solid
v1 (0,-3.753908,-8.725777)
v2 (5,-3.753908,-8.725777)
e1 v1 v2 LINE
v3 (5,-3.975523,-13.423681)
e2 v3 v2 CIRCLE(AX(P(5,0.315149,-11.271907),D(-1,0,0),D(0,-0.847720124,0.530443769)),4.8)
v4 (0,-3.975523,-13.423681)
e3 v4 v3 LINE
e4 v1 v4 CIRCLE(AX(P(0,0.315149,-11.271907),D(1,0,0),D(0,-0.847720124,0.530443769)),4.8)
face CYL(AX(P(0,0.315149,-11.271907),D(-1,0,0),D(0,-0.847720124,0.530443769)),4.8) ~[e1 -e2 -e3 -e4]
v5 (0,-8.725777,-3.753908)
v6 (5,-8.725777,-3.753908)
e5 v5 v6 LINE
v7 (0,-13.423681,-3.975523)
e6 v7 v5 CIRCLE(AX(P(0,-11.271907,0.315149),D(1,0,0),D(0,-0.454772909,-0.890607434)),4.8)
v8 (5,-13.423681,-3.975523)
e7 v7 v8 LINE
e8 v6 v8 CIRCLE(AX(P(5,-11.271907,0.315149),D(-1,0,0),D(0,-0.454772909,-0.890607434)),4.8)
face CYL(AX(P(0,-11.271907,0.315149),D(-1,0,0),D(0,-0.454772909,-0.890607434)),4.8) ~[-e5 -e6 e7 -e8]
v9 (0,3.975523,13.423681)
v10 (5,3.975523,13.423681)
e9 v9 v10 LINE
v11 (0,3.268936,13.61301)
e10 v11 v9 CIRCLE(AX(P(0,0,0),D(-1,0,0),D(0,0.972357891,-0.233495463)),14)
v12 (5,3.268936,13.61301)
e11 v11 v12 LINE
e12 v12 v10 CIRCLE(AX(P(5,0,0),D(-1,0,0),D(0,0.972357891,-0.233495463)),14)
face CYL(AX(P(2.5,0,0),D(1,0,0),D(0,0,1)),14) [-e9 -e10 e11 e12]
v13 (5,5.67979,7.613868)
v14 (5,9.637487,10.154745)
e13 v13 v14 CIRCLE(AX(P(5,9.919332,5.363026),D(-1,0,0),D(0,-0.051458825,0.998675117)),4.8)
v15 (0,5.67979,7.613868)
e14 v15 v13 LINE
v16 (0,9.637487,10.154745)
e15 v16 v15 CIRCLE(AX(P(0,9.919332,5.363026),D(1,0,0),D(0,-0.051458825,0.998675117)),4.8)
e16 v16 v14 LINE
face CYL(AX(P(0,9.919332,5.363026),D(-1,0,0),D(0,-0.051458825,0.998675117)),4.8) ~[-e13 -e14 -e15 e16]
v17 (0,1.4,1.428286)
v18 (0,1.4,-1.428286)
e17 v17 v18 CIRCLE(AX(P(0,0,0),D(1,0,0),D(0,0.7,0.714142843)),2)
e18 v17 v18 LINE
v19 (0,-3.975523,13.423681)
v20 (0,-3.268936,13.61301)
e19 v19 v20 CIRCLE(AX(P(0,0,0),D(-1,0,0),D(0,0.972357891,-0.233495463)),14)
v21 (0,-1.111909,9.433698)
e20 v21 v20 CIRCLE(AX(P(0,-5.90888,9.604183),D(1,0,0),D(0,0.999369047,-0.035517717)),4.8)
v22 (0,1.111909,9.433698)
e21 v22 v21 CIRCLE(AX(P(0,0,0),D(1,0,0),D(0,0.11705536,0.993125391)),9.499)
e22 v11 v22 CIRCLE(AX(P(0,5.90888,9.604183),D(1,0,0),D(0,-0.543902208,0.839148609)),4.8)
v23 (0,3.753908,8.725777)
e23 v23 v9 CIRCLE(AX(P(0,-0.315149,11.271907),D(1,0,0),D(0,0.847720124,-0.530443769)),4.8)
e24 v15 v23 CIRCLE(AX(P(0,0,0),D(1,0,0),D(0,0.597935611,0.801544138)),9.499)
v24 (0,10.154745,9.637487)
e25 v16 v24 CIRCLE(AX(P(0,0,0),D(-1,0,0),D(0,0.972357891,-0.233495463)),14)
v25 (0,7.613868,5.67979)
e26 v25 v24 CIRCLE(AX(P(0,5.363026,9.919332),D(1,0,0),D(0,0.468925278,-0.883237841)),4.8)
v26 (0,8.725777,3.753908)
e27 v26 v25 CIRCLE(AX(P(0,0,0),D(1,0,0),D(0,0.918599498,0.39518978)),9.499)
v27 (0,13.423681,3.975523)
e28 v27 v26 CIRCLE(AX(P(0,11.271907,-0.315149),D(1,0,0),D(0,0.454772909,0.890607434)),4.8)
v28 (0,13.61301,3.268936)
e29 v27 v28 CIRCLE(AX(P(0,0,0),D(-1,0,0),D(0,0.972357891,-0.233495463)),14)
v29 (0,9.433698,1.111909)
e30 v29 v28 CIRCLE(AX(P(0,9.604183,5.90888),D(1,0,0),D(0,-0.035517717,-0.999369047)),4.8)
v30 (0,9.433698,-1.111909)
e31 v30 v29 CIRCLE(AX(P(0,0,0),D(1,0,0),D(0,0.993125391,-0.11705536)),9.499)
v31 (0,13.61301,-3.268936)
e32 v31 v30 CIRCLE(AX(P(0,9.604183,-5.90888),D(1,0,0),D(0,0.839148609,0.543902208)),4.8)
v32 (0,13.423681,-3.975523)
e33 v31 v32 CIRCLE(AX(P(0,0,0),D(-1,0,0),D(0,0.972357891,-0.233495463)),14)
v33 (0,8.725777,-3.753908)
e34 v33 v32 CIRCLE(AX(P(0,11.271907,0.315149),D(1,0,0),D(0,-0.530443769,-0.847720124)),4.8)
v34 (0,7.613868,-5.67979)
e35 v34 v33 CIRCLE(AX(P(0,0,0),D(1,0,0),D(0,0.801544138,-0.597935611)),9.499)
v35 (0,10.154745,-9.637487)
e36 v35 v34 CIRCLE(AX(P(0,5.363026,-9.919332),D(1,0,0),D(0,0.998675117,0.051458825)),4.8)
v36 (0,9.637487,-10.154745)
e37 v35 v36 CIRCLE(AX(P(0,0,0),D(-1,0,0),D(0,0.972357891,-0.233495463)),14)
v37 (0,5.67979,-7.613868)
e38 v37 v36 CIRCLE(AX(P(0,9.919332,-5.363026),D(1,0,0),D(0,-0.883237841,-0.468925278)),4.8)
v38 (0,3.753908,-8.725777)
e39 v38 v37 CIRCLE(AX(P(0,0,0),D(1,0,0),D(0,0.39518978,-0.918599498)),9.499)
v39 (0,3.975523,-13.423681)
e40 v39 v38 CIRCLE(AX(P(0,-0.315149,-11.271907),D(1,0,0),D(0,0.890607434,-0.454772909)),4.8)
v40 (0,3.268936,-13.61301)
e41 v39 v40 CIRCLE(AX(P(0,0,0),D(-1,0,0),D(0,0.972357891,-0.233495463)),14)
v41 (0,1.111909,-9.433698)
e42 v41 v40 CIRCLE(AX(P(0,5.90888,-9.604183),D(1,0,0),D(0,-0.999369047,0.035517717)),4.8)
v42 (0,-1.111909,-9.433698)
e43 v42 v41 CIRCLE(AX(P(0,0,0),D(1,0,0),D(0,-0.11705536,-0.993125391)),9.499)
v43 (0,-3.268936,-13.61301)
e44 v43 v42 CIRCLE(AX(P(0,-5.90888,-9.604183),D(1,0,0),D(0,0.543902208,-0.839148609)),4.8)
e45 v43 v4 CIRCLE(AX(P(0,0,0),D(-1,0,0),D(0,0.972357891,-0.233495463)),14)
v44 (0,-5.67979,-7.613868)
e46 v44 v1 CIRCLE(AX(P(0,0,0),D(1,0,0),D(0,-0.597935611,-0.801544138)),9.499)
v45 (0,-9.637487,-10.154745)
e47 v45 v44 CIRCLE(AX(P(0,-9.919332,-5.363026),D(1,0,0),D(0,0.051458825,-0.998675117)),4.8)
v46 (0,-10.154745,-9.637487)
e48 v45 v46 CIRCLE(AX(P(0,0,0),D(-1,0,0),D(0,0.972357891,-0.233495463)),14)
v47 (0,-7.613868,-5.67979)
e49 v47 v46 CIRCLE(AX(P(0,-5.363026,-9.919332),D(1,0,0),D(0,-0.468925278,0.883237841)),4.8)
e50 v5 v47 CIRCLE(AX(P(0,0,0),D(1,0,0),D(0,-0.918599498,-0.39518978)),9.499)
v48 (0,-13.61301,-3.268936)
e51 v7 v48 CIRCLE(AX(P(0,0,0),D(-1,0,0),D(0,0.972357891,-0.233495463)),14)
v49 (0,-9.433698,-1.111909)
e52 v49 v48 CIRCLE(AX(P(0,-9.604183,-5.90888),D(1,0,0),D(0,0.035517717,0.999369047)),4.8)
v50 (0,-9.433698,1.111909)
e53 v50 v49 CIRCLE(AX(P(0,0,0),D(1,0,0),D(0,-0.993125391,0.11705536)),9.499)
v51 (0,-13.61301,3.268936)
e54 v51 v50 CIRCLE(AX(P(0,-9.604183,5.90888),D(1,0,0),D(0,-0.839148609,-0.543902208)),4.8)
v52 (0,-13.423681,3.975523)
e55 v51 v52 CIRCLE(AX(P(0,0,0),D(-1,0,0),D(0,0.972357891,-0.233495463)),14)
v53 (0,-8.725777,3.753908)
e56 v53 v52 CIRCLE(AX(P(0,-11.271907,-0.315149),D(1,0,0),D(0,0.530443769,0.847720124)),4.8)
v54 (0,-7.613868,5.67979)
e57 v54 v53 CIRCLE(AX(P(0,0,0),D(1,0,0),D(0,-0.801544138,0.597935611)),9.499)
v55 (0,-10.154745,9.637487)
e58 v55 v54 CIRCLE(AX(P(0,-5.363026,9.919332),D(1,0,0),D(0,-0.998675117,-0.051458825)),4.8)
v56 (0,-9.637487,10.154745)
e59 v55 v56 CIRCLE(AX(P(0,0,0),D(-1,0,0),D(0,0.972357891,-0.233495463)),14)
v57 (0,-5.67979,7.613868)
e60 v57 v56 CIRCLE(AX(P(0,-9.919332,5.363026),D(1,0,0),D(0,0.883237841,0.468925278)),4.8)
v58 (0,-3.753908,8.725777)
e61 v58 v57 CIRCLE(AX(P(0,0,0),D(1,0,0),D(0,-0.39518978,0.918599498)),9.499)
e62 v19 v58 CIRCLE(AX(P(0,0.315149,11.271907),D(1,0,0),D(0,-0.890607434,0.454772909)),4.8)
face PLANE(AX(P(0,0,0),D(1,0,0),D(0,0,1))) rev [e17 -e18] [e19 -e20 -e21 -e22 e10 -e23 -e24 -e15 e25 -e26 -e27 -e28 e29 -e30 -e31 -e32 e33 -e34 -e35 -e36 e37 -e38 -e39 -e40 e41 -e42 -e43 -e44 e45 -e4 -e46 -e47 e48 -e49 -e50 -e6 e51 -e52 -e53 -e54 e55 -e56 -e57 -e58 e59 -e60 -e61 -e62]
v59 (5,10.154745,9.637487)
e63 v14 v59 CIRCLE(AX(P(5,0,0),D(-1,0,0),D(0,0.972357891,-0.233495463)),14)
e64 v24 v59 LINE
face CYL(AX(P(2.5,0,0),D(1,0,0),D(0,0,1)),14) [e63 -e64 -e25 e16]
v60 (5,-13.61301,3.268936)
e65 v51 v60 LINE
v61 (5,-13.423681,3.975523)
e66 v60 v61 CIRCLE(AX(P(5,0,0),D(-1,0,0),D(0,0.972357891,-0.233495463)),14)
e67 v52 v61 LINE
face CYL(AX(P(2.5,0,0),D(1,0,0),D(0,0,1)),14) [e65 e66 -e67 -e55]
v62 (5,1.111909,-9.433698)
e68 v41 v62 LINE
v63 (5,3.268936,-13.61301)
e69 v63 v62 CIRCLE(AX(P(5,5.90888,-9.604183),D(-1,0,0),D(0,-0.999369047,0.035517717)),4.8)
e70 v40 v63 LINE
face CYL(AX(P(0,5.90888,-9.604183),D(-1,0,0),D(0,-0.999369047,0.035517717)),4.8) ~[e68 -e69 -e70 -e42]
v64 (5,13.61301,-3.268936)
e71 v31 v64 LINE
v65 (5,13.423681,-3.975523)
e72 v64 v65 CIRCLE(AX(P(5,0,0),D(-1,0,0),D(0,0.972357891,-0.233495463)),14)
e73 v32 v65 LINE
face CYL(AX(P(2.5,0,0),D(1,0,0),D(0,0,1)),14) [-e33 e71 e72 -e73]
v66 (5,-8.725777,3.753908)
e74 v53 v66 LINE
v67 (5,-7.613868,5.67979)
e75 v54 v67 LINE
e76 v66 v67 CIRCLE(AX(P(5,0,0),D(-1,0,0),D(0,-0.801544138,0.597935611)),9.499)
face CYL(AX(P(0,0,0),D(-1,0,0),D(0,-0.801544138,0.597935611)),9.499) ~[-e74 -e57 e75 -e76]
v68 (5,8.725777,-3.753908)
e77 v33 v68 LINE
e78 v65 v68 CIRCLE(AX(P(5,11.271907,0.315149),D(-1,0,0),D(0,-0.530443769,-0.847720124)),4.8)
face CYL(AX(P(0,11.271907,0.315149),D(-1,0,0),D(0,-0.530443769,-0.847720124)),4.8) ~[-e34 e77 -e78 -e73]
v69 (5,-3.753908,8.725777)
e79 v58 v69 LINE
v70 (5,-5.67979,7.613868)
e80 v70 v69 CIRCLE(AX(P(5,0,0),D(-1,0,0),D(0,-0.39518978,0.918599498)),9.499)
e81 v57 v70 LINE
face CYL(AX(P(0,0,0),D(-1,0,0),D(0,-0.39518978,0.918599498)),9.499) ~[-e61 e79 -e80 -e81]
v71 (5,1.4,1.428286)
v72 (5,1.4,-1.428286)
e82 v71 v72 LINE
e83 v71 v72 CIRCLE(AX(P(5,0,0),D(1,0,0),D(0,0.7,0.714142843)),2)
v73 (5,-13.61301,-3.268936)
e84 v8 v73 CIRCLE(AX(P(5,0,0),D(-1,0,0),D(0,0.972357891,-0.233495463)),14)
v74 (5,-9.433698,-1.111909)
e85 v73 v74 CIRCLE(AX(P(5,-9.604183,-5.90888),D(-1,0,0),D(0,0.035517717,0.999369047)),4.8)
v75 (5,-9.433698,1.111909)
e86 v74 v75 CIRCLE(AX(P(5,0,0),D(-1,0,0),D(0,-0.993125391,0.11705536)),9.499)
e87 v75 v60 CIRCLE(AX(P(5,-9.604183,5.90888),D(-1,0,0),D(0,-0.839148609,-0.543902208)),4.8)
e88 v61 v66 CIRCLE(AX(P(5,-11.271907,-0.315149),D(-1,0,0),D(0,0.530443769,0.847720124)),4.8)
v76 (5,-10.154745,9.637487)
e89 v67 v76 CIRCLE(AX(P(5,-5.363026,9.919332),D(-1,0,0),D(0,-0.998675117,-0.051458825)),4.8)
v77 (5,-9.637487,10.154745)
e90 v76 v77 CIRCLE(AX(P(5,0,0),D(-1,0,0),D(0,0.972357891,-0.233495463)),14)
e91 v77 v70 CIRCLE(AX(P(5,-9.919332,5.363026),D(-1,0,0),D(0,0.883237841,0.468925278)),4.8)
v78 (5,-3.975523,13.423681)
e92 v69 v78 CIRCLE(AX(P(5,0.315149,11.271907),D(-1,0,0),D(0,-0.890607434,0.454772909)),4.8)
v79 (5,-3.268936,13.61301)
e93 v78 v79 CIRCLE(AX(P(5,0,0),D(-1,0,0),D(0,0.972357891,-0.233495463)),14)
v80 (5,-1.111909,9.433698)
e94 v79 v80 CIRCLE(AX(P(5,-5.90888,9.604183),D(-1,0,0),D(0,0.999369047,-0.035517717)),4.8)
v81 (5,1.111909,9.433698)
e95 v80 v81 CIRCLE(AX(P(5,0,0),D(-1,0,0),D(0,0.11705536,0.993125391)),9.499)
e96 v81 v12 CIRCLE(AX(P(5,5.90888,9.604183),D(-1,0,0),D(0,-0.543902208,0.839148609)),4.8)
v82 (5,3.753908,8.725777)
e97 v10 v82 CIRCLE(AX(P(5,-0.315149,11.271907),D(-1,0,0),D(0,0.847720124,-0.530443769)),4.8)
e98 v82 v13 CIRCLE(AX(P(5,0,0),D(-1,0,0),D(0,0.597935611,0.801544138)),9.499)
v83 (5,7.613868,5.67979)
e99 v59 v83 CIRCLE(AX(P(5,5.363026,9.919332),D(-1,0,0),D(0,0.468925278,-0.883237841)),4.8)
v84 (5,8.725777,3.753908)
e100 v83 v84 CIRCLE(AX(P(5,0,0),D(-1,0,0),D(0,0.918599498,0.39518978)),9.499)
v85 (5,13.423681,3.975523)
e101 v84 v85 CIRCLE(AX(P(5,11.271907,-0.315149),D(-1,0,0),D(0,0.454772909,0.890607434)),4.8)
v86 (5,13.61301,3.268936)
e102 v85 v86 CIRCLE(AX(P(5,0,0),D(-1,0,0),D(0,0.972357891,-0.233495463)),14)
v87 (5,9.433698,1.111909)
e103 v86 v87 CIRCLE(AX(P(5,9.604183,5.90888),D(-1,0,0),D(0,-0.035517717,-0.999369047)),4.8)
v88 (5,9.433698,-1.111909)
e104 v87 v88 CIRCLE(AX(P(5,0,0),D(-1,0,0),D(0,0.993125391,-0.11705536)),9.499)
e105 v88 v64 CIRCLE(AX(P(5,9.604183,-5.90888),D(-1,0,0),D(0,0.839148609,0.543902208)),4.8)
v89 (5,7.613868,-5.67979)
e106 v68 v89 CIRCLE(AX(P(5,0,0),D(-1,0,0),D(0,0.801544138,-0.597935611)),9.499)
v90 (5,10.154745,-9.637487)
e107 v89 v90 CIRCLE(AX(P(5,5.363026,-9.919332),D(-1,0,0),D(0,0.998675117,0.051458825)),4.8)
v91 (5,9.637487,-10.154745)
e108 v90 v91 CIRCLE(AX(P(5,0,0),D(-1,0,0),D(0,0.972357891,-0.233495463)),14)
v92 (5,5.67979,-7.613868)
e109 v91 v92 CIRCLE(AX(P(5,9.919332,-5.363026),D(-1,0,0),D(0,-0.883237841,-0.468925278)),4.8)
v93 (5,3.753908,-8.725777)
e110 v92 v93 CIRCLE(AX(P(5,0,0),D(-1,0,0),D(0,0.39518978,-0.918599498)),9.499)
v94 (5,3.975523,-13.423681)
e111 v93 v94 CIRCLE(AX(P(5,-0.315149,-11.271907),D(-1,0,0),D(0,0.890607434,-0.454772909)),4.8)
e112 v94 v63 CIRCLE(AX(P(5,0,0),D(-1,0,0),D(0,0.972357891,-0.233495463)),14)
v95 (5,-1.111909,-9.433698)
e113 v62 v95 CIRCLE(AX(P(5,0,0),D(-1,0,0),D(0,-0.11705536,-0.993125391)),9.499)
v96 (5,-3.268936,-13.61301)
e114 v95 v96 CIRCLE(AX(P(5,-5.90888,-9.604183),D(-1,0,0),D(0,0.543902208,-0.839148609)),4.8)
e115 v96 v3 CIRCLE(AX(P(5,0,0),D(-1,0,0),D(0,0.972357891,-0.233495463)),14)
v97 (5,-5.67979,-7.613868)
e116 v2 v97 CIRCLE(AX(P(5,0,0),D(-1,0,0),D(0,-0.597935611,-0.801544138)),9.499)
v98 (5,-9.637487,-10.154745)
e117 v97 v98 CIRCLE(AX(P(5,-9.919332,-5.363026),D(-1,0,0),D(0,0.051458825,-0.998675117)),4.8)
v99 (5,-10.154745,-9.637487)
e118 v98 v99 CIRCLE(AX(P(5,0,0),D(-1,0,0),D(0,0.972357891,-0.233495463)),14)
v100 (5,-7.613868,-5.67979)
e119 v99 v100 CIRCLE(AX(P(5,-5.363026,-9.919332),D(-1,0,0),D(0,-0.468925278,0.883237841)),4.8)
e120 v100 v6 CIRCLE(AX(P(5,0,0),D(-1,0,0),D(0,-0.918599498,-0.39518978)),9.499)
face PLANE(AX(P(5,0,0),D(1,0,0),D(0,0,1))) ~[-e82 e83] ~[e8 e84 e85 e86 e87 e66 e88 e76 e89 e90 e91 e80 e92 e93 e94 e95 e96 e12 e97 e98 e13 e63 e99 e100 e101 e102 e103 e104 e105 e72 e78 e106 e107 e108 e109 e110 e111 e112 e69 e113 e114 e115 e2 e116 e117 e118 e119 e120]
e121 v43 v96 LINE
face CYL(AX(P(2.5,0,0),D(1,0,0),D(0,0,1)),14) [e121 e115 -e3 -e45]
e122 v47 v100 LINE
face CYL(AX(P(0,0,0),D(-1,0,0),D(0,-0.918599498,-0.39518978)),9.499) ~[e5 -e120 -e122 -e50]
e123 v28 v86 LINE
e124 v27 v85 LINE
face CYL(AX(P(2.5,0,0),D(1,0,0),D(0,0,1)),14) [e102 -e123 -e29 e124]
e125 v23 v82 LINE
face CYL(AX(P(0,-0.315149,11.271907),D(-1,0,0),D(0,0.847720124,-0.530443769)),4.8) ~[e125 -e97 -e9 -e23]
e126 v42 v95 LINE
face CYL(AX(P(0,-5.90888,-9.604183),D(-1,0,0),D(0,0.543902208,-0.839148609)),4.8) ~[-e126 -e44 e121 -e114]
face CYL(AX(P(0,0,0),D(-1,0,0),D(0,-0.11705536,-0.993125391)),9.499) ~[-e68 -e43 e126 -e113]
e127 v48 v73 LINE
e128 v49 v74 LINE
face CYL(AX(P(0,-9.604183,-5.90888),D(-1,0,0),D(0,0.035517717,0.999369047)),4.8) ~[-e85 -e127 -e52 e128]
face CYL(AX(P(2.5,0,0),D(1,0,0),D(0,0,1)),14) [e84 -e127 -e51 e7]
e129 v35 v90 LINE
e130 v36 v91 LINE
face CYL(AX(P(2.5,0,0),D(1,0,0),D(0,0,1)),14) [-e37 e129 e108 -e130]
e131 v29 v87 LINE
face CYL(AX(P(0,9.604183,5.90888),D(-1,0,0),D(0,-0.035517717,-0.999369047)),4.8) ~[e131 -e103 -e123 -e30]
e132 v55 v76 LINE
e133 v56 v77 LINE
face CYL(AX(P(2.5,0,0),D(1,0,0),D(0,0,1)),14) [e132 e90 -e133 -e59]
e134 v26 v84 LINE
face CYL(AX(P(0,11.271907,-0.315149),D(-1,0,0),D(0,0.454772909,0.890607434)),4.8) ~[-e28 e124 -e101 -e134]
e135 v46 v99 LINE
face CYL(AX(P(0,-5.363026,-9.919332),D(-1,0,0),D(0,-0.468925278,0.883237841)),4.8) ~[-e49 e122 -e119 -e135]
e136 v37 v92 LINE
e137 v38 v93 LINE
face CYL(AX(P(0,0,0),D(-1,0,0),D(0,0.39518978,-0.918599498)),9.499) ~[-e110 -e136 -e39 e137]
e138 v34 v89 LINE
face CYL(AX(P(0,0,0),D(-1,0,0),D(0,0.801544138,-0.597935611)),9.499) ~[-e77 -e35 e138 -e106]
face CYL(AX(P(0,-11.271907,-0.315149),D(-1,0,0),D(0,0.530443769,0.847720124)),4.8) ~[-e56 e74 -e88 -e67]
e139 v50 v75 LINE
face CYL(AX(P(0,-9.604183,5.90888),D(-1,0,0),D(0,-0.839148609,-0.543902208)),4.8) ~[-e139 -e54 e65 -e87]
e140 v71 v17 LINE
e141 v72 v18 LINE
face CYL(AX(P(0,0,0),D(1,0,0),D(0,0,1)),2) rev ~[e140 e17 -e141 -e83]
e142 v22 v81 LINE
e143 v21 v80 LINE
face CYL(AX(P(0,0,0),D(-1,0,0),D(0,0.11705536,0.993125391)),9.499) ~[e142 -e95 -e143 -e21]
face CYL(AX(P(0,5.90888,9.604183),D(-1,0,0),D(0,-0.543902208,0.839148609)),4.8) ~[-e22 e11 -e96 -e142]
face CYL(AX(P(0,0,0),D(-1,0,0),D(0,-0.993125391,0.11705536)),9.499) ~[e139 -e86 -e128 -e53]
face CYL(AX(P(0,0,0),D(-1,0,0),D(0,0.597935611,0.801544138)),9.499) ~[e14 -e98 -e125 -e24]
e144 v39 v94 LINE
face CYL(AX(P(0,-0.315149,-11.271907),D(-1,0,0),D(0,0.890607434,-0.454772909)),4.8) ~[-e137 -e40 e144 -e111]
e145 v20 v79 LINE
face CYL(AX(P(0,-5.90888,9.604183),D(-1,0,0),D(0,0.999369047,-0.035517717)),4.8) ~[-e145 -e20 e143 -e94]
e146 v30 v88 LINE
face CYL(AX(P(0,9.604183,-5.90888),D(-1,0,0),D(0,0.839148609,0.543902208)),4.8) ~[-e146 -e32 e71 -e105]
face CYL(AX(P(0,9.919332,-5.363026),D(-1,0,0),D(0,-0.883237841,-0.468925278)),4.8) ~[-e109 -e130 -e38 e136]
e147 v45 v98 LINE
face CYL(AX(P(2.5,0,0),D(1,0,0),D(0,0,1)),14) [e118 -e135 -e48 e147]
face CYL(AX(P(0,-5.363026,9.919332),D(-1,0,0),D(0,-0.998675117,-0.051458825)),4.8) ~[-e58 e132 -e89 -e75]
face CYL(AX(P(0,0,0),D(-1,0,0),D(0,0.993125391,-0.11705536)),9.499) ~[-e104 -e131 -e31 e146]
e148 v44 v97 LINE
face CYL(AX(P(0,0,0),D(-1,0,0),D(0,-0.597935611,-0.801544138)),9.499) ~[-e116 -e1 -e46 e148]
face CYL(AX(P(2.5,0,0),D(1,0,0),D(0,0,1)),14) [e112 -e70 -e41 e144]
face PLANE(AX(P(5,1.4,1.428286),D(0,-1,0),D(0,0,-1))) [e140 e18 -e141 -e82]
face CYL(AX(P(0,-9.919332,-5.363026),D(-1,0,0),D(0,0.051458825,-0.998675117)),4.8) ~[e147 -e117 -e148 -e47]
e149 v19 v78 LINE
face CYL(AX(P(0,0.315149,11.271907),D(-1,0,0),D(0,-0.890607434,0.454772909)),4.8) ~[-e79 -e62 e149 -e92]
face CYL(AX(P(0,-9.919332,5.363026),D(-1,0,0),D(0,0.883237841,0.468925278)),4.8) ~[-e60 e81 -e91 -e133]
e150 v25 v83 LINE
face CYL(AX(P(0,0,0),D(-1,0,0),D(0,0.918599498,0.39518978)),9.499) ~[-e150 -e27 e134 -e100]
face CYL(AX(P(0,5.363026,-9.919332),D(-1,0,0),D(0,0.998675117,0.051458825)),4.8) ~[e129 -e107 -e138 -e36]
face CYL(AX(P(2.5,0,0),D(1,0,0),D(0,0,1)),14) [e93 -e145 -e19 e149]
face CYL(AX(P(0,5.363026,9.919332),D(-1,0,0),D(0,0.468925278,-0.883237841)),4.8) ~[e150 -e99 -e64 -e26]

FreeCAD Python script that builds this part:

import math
import FreeCAD as App
import Part
import Sketcher
Q = App.Units.Quantity


def add_polygon(sketch, points):
    """Adds a closed chain of lines whose ends are joined by coincident constraints."""
    first, n = sketch.GeometryCount, len(points)
    for a, b in zip(points, points[1:] + points[:1]):
        sketch.addGeometry(Part.LineSegment(App.Vector(*a, 0), App.Vector(*b, 0)), False)
    for i in range(n):
        sketch.addConstraint(Sketcher.Constraint("Coincident", first + i, 2, first + (i + 1) % n, 1))

doc = App.newDocument("Part")
body = doc.addObject("PartDesign::Body", "Body")

sketch1 = body.newObject("Sketcher::SketchObject", "Sketch")
sketch1.AttachmentSupport = (doc.getObject("XZ_Plane"), [""])
sketch1.MapMode = "FlatFace"
add_polygon(sketch1, [(0, -14), (0, 0), (5, 0), (5, -14)])
sketch1.addConstraint([
    Sketcher.Constraint("Vertical", 0),
    Sketcher.Constraint("Horizontal", 1),
    Sketcher.Constraint("Vertical", 2),
    Sketcher.Constraint("Horizontal", 3),
    Sketcher.Constraint("Coincident", 0, 2, -1, 1),
    Sketcher.Constraint("DistanceX", 1, 1, 1, 2, Q("5 mm")),
    Sketcher.Constraint("DistanceY", 0, 1, 0, 2, Q("14 mm")),
])
revolution = body.newObject("PartDesign::Revolution", "Revolution")
revolution.Profile = sketch1
revolution.ReferenceAxis = (sketch1, ["H_Axis"])
revolution.Angle = 360

sketch2 = body.newObject("Sketcher::SketchObject", "Sketch001")
sketch2.AttachmentSupport = (doc.getObject("YZ_Plane"), [""])
sketch2.MapMode = "FlatFace"
sketch2.addGeometry([
    Part.ArcOfCircle(Part.Circle(App.Vector(0, 0, 0), App.Vector(0, 0, 1), 9.499), math.radians(-6.722189), math.radians(6.722189)),
    Part.ArcOfCircle(Part.Circle(App.Vector(9.604183, -5.90888, 0), App.Vector(0, 0, 1), 4.8), math.radians(32.949676), math.radians(92.035443)),
    Part.ArcOfCircle(Part.Circle(App.Vector(0, 0, 0), App.Vector(0, 0, 1), 14.0254), math.radians(-13.600788), math.radians(13.600788)),
    Part.ArcOfCircle(Part.Circle(App.Vector(9.604183, 5.90888, 0), App.Vector(0, 0, 1), 4.8), math.radians(-92.035443), math.radians(-32.949676)),
], False)
sketch2.addConstraint([
    Sketcher.Constraint("Coincident", 0, 1, 1, 2),
    Sketcher.Constraint("Coincident", 1, 1, 2, 1),
    Sketcher.Constraint("Coincident", 2, 2, 3, 2),
    Sketcher.Constraint("Coincident", 3, 1, 0, 2),
    Sketcher.Constraint("Coincident", 0, 3, -1, 1),
    Sketcher.Constraint("Coincident", 2, 3, -1, 1),
    Sketcher.Constraint("Equal", 1, 3),
    Sketcher.Constraint("Symmetric", 1, 3, 3, 3, -1),
    Sketcher.Constraint("Radius", 1, Q("4.8 mm")),
    Sketcher.Constraint("Radius", 0, Q("9.499 mm")),
    Sketcher.Constraint("Radius", 2, Q("14.0254 mm")),
    Sketcher.Constraint("DistanceX", -1, 1, 0, 1, Q("9.433698 mm")),
    Sketcher.Constraint("DistanceX", 0, 1, 1, 1, Q("4.198398 mm")),
])
pocket1 = body.newObject("PartDesign::Pocket", "Pocket")
pocket1.Profile = sketch2
pocket1.Type = "ThroughAll"
pocket1.Reversed = True
doc.recompute()

polarpattern = body.newObject("PartDesign::PolarPattern", "PolarPattern")
polarpattern.Originals = [pocket1]
polarpattern.Axis = (doc.getObject("X_Axis"), [""])
polarpattern.Angle = 360
polarpattern.Occurrences = 12
body.Tip = polarpattern

sketch3 = body.newObject("Sketcher::SketchObject", "Sketch002")
sketch3.AttachmentSupport = (doc.getObject("YZ_Plane"), [""])
sketch3.MapMode = "FlatFace"
sketch3.addGeometry(Part.Circle(App.Vector(0, 0, 0), App.Vector(0, 0, 1), 2), False)
sketch3.addConstraint([
    Sketcher.Constraint("Coincident", 0, 3, -1, 1),
    Sketcher.Constraint("Diameter", 0, Q("4 mm")),
])
pocket2 = body.newObject("PartDesign::Pocket", "Pocket001")
pocket2.Profile = sketch3
pocket2.Length = 100.000102
pocket2.Midplane = True

sketch4 = body.newObject("Sketcher::SketchObject", "Sketch003")
sketch4.AttachmentSupport = (doc.getObject("YZ_Plane"), [""])
sketch4.MapMode = "FlatFace"
sketch4.AttachmentOffset = App.Placement(App.Vector(0, 0, 5), App.Rotation())
sketch4.addGeometry([
    Part.LineSegment(App.Vector(1.4, 1.428286, 0), App.Vector(1.4, -1.428286, 0)),
    Part.ArcOfCircle(Part.Circle(App.Vector(0, 0, 0), App.Vector(0, 0, 1), 2), math.radians(-45.572996), math.radians(45.572996)),
], False)
sketch4.addConstraint([
    Sketcher.Constraint("Coincident", 0, 1, 1, 2),
    Sketcher.Constraint("Coincident", 1, 1, 0, 2),
    Sketcher.Constraint("Vertical", 0),
    Sketcher.Constraint("Coincident", 1, 3, -1, 1),
    Sketcher.Constraint("Radius", 1, Q("2 mm")),
    Sketcher.Constraint("DistanceX", -1, 1, 0, 1, Q("1.4 mm")),
])
pad1 = body.newObject("PartDesign::Pad", "Pad")
pad1.Profile = sketch4
pad1.Length = 5
pad1.Reversed = True

doc.recompute()
